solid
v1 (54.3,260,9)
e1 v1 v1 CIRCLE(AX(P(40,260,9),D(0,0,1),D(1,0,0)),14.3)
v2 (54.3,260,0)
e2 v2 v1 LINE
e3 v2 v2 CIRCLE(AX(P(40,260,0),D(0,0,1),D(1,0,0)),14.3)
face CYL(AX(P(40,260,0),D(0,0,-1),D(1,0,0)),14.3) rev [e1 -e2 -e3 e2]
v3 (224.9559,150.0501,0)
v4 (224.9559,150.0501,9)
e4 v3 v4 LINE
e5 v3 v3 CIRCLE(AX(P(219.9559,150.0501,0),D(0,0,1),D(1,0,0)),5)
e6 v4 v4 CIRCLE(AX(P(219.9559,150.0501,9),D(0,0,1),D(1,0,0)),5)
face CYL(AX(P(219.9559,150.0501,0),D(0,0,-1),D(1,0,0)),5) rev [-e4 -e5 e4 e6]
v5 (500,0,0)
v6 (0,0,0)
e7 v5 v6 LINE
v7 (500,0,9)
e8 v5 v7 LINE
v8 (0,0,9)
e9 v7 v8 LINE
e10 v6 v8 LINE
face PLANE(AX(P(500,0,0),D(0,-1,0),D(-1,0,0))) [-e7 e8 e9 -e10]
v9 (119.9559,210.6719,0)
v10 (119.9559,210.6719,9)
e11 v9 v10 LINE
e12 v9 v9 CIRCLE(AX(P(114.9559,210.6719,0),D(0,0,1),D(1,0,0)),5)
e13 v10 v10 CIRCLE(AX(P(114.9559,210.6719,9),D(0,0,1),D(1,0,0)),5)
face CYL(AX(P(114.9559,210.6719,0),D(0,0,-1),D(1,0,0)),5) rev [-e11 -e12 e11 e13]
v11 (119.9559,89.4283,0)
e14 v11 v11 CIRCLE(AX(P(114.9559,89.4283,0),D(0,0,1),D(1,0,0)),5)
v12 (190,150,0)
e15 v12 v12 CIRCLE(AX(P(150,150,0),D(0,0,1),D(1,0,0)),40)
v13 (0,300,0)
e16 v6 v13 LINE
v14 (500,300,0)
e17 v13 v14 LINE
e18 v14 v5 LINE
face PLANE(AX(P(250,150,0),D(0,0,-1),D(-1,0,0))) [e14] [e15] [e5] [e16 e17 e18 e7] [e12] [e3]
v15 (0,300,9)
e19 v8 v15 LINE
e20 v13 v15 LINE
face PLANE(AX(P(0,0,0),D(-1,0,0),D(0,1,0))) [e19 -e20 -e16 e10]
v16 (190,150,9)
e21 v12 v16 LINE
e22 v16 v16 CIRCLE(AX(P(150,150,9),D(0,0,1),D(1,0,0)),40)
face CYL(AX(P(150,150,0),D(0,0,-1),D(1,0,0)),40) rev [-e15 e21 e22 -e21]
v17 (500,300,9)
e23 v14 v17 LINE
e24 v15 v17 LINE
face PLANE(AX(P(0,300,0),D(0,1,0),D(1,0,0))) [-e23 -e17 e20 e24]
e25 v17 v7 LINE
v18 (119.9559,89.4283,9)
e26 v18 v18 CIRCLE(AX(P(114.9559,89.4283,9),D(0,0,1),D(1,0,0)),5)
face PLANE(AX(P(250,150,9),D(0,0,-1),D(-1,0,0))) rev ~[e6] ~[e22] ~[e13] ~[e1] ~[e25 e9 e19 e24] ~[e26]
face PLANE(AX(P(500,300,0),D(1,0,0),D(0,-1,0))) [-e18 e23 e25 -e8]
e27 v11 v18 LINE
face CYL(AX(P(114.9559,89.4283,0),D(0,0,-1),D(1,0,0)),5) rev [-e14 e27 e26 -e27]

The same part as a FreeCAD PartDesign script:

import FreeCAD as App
import Part
import Sketcher
from FreeCAD import Vector


def add_polygon(sketch, points):
    """Adds a closed chain of lines whose ends are joined by coincident constraints."""
    first, n = sketch.GeometryCount, len(points)
    for a, b in zip(points, points[1:] + points[:1]):
        sketch.addGeometry(Part.LineSegment(App.Vector(*a, 0), App.Vector(*b, 0)), False)
    for i in range(n):
        sketch.addConstraint(Sketcher.Constraint("Coincident", first + i, 2, first + (i + 1) % n, 1))

doc = App.newDocument("Part")
params = doc.addObject("Spreadsheet::Sheet", "Params")
for row, (alias, value) in enumerate([
    ("sketch1_diameter", "10 mm"),
    ("sketch1_diameter2", "80 mm"),
    ("sketch1_diameter3", "28.6 mm"),
    ("sketch1_width", "500 mm"),
    ("sketch1_height", "300 mm"),
    ("pad1_length", "9 mm"),
], start=1):
    params.set(f"A{row}", alias)
    params.set(f"B{row}", "=" + value)
    params.setAlias(f"B{row}", alias)

body = doc.addObject("PartDesign::Body", "Body")

sketch1 = doc.addObject("Sketcher::SketchObject", "Sketch")
body.addObject(sketch1)
sketch1.AttachmentSupport = (doc.XY_Plane, [""])
sketch1.MapMode = "FlatFace"
add_polygon(sketch1, [(0, 0), (500, 0), (500, 300), (0, 300)])
sketch1.addGeometry(Part.Circle(Vector(115, 89, 0), Vector(0, 0, 1), 5), False)
sketch1.addGeometry(Part.Circle(Vector(115, 211, 0), Vector(0, 0, 1), 5), False)
sketch1.addGeometry(Part.Circle(Vector(150, 150, 0), Vector(0, 0, 1), 40), False)
sketch1.addGeometry(Part.Circle(Vector(220, 150, 0), Vector(0, 0, 1), 5), False)
sketch1.addGeometry(Part.Circle(Vector(40, 260, 0), Vector(0, 0, 1), 14), False)
sketch1.addConstraint([
    Sketcher.Constraint("Horizontal", 0),
    Sketcher.Constraint("Vertical", 1),
    Sketcher.Constraint("Horizontal", 2),
    Sketcher.Constraint("Vertical", 3),
    Sketcher.Constraint("Coincident", 3, 2, -1, 1),
    Sketcher.Constraint("Equal", 4, 5),
    Sketcher.Constraint("Equal", 5, 7),
    Sketcher.Constraint("Vertical", 4, 3, 5, 3),
    Sketcher.Constraint("Diameter", 4, 10.0),
    Sketcher.Constraint("Diameter", 6, 80.0),
    Sketcher.Constraint("Diameter", 8, 28.6),
    Sketcher.Constraint("DistanceX", 0, 1, 0, 2, 500.0),
    Sketcher.Constraint("DistanceY", 1, 1, 1, 2, 300.0),
    Sketcher.Constraint("DistanceX", -1, 1, 6, 3, 150.0),
    Sketcher.Constraint("DistanceY", -1, 1, 6, 3, 150.0),
    Sketcher.Constraint("DistanceX", -1, 1, 8, 3, 40.0),
    Sketcher.Constraint("DistanceY", -1, 1, 8, 3, 260.0),
    Sketcher.Constraint("DistanceX", 4, 3, 7, 3, 105.0),
    Sketcher.Constraint("DistanceY", -1, 1, 7, 3, 150.05),
    Sketcher.Constraint("DistanceX", -1, 1, 4, 3, 114.956),
    Sketcher.Constraint("DistanceY", -1, 1, 5, 3, 210.672),
    Sketcher.Constraint("DistanceY", -1, 1, 4, 3, 89.4283),
])
sketch1.setExpression("Constraints[12]", "Params.sketch1_diameter")
sketch1.setExpression("Constraints[13]", "Params.sketch1_diameter2")
sketch1.setExpression("Constraints[14]", "Params.sketch1_diameter3")
sketch1.setExpression("Constraints[15]", "Params.sketch1_width")
sketch1.setExpression("Constraints[16]", "Params.sketch1_height")
pad1 = doc.addObject("PartDesign::Pad", "Pad")
body.addObject(pad1)
pad1.Profile = sketch1
pad1.setExpression("Length", "Params.pad1_length")

doc.recompute()
